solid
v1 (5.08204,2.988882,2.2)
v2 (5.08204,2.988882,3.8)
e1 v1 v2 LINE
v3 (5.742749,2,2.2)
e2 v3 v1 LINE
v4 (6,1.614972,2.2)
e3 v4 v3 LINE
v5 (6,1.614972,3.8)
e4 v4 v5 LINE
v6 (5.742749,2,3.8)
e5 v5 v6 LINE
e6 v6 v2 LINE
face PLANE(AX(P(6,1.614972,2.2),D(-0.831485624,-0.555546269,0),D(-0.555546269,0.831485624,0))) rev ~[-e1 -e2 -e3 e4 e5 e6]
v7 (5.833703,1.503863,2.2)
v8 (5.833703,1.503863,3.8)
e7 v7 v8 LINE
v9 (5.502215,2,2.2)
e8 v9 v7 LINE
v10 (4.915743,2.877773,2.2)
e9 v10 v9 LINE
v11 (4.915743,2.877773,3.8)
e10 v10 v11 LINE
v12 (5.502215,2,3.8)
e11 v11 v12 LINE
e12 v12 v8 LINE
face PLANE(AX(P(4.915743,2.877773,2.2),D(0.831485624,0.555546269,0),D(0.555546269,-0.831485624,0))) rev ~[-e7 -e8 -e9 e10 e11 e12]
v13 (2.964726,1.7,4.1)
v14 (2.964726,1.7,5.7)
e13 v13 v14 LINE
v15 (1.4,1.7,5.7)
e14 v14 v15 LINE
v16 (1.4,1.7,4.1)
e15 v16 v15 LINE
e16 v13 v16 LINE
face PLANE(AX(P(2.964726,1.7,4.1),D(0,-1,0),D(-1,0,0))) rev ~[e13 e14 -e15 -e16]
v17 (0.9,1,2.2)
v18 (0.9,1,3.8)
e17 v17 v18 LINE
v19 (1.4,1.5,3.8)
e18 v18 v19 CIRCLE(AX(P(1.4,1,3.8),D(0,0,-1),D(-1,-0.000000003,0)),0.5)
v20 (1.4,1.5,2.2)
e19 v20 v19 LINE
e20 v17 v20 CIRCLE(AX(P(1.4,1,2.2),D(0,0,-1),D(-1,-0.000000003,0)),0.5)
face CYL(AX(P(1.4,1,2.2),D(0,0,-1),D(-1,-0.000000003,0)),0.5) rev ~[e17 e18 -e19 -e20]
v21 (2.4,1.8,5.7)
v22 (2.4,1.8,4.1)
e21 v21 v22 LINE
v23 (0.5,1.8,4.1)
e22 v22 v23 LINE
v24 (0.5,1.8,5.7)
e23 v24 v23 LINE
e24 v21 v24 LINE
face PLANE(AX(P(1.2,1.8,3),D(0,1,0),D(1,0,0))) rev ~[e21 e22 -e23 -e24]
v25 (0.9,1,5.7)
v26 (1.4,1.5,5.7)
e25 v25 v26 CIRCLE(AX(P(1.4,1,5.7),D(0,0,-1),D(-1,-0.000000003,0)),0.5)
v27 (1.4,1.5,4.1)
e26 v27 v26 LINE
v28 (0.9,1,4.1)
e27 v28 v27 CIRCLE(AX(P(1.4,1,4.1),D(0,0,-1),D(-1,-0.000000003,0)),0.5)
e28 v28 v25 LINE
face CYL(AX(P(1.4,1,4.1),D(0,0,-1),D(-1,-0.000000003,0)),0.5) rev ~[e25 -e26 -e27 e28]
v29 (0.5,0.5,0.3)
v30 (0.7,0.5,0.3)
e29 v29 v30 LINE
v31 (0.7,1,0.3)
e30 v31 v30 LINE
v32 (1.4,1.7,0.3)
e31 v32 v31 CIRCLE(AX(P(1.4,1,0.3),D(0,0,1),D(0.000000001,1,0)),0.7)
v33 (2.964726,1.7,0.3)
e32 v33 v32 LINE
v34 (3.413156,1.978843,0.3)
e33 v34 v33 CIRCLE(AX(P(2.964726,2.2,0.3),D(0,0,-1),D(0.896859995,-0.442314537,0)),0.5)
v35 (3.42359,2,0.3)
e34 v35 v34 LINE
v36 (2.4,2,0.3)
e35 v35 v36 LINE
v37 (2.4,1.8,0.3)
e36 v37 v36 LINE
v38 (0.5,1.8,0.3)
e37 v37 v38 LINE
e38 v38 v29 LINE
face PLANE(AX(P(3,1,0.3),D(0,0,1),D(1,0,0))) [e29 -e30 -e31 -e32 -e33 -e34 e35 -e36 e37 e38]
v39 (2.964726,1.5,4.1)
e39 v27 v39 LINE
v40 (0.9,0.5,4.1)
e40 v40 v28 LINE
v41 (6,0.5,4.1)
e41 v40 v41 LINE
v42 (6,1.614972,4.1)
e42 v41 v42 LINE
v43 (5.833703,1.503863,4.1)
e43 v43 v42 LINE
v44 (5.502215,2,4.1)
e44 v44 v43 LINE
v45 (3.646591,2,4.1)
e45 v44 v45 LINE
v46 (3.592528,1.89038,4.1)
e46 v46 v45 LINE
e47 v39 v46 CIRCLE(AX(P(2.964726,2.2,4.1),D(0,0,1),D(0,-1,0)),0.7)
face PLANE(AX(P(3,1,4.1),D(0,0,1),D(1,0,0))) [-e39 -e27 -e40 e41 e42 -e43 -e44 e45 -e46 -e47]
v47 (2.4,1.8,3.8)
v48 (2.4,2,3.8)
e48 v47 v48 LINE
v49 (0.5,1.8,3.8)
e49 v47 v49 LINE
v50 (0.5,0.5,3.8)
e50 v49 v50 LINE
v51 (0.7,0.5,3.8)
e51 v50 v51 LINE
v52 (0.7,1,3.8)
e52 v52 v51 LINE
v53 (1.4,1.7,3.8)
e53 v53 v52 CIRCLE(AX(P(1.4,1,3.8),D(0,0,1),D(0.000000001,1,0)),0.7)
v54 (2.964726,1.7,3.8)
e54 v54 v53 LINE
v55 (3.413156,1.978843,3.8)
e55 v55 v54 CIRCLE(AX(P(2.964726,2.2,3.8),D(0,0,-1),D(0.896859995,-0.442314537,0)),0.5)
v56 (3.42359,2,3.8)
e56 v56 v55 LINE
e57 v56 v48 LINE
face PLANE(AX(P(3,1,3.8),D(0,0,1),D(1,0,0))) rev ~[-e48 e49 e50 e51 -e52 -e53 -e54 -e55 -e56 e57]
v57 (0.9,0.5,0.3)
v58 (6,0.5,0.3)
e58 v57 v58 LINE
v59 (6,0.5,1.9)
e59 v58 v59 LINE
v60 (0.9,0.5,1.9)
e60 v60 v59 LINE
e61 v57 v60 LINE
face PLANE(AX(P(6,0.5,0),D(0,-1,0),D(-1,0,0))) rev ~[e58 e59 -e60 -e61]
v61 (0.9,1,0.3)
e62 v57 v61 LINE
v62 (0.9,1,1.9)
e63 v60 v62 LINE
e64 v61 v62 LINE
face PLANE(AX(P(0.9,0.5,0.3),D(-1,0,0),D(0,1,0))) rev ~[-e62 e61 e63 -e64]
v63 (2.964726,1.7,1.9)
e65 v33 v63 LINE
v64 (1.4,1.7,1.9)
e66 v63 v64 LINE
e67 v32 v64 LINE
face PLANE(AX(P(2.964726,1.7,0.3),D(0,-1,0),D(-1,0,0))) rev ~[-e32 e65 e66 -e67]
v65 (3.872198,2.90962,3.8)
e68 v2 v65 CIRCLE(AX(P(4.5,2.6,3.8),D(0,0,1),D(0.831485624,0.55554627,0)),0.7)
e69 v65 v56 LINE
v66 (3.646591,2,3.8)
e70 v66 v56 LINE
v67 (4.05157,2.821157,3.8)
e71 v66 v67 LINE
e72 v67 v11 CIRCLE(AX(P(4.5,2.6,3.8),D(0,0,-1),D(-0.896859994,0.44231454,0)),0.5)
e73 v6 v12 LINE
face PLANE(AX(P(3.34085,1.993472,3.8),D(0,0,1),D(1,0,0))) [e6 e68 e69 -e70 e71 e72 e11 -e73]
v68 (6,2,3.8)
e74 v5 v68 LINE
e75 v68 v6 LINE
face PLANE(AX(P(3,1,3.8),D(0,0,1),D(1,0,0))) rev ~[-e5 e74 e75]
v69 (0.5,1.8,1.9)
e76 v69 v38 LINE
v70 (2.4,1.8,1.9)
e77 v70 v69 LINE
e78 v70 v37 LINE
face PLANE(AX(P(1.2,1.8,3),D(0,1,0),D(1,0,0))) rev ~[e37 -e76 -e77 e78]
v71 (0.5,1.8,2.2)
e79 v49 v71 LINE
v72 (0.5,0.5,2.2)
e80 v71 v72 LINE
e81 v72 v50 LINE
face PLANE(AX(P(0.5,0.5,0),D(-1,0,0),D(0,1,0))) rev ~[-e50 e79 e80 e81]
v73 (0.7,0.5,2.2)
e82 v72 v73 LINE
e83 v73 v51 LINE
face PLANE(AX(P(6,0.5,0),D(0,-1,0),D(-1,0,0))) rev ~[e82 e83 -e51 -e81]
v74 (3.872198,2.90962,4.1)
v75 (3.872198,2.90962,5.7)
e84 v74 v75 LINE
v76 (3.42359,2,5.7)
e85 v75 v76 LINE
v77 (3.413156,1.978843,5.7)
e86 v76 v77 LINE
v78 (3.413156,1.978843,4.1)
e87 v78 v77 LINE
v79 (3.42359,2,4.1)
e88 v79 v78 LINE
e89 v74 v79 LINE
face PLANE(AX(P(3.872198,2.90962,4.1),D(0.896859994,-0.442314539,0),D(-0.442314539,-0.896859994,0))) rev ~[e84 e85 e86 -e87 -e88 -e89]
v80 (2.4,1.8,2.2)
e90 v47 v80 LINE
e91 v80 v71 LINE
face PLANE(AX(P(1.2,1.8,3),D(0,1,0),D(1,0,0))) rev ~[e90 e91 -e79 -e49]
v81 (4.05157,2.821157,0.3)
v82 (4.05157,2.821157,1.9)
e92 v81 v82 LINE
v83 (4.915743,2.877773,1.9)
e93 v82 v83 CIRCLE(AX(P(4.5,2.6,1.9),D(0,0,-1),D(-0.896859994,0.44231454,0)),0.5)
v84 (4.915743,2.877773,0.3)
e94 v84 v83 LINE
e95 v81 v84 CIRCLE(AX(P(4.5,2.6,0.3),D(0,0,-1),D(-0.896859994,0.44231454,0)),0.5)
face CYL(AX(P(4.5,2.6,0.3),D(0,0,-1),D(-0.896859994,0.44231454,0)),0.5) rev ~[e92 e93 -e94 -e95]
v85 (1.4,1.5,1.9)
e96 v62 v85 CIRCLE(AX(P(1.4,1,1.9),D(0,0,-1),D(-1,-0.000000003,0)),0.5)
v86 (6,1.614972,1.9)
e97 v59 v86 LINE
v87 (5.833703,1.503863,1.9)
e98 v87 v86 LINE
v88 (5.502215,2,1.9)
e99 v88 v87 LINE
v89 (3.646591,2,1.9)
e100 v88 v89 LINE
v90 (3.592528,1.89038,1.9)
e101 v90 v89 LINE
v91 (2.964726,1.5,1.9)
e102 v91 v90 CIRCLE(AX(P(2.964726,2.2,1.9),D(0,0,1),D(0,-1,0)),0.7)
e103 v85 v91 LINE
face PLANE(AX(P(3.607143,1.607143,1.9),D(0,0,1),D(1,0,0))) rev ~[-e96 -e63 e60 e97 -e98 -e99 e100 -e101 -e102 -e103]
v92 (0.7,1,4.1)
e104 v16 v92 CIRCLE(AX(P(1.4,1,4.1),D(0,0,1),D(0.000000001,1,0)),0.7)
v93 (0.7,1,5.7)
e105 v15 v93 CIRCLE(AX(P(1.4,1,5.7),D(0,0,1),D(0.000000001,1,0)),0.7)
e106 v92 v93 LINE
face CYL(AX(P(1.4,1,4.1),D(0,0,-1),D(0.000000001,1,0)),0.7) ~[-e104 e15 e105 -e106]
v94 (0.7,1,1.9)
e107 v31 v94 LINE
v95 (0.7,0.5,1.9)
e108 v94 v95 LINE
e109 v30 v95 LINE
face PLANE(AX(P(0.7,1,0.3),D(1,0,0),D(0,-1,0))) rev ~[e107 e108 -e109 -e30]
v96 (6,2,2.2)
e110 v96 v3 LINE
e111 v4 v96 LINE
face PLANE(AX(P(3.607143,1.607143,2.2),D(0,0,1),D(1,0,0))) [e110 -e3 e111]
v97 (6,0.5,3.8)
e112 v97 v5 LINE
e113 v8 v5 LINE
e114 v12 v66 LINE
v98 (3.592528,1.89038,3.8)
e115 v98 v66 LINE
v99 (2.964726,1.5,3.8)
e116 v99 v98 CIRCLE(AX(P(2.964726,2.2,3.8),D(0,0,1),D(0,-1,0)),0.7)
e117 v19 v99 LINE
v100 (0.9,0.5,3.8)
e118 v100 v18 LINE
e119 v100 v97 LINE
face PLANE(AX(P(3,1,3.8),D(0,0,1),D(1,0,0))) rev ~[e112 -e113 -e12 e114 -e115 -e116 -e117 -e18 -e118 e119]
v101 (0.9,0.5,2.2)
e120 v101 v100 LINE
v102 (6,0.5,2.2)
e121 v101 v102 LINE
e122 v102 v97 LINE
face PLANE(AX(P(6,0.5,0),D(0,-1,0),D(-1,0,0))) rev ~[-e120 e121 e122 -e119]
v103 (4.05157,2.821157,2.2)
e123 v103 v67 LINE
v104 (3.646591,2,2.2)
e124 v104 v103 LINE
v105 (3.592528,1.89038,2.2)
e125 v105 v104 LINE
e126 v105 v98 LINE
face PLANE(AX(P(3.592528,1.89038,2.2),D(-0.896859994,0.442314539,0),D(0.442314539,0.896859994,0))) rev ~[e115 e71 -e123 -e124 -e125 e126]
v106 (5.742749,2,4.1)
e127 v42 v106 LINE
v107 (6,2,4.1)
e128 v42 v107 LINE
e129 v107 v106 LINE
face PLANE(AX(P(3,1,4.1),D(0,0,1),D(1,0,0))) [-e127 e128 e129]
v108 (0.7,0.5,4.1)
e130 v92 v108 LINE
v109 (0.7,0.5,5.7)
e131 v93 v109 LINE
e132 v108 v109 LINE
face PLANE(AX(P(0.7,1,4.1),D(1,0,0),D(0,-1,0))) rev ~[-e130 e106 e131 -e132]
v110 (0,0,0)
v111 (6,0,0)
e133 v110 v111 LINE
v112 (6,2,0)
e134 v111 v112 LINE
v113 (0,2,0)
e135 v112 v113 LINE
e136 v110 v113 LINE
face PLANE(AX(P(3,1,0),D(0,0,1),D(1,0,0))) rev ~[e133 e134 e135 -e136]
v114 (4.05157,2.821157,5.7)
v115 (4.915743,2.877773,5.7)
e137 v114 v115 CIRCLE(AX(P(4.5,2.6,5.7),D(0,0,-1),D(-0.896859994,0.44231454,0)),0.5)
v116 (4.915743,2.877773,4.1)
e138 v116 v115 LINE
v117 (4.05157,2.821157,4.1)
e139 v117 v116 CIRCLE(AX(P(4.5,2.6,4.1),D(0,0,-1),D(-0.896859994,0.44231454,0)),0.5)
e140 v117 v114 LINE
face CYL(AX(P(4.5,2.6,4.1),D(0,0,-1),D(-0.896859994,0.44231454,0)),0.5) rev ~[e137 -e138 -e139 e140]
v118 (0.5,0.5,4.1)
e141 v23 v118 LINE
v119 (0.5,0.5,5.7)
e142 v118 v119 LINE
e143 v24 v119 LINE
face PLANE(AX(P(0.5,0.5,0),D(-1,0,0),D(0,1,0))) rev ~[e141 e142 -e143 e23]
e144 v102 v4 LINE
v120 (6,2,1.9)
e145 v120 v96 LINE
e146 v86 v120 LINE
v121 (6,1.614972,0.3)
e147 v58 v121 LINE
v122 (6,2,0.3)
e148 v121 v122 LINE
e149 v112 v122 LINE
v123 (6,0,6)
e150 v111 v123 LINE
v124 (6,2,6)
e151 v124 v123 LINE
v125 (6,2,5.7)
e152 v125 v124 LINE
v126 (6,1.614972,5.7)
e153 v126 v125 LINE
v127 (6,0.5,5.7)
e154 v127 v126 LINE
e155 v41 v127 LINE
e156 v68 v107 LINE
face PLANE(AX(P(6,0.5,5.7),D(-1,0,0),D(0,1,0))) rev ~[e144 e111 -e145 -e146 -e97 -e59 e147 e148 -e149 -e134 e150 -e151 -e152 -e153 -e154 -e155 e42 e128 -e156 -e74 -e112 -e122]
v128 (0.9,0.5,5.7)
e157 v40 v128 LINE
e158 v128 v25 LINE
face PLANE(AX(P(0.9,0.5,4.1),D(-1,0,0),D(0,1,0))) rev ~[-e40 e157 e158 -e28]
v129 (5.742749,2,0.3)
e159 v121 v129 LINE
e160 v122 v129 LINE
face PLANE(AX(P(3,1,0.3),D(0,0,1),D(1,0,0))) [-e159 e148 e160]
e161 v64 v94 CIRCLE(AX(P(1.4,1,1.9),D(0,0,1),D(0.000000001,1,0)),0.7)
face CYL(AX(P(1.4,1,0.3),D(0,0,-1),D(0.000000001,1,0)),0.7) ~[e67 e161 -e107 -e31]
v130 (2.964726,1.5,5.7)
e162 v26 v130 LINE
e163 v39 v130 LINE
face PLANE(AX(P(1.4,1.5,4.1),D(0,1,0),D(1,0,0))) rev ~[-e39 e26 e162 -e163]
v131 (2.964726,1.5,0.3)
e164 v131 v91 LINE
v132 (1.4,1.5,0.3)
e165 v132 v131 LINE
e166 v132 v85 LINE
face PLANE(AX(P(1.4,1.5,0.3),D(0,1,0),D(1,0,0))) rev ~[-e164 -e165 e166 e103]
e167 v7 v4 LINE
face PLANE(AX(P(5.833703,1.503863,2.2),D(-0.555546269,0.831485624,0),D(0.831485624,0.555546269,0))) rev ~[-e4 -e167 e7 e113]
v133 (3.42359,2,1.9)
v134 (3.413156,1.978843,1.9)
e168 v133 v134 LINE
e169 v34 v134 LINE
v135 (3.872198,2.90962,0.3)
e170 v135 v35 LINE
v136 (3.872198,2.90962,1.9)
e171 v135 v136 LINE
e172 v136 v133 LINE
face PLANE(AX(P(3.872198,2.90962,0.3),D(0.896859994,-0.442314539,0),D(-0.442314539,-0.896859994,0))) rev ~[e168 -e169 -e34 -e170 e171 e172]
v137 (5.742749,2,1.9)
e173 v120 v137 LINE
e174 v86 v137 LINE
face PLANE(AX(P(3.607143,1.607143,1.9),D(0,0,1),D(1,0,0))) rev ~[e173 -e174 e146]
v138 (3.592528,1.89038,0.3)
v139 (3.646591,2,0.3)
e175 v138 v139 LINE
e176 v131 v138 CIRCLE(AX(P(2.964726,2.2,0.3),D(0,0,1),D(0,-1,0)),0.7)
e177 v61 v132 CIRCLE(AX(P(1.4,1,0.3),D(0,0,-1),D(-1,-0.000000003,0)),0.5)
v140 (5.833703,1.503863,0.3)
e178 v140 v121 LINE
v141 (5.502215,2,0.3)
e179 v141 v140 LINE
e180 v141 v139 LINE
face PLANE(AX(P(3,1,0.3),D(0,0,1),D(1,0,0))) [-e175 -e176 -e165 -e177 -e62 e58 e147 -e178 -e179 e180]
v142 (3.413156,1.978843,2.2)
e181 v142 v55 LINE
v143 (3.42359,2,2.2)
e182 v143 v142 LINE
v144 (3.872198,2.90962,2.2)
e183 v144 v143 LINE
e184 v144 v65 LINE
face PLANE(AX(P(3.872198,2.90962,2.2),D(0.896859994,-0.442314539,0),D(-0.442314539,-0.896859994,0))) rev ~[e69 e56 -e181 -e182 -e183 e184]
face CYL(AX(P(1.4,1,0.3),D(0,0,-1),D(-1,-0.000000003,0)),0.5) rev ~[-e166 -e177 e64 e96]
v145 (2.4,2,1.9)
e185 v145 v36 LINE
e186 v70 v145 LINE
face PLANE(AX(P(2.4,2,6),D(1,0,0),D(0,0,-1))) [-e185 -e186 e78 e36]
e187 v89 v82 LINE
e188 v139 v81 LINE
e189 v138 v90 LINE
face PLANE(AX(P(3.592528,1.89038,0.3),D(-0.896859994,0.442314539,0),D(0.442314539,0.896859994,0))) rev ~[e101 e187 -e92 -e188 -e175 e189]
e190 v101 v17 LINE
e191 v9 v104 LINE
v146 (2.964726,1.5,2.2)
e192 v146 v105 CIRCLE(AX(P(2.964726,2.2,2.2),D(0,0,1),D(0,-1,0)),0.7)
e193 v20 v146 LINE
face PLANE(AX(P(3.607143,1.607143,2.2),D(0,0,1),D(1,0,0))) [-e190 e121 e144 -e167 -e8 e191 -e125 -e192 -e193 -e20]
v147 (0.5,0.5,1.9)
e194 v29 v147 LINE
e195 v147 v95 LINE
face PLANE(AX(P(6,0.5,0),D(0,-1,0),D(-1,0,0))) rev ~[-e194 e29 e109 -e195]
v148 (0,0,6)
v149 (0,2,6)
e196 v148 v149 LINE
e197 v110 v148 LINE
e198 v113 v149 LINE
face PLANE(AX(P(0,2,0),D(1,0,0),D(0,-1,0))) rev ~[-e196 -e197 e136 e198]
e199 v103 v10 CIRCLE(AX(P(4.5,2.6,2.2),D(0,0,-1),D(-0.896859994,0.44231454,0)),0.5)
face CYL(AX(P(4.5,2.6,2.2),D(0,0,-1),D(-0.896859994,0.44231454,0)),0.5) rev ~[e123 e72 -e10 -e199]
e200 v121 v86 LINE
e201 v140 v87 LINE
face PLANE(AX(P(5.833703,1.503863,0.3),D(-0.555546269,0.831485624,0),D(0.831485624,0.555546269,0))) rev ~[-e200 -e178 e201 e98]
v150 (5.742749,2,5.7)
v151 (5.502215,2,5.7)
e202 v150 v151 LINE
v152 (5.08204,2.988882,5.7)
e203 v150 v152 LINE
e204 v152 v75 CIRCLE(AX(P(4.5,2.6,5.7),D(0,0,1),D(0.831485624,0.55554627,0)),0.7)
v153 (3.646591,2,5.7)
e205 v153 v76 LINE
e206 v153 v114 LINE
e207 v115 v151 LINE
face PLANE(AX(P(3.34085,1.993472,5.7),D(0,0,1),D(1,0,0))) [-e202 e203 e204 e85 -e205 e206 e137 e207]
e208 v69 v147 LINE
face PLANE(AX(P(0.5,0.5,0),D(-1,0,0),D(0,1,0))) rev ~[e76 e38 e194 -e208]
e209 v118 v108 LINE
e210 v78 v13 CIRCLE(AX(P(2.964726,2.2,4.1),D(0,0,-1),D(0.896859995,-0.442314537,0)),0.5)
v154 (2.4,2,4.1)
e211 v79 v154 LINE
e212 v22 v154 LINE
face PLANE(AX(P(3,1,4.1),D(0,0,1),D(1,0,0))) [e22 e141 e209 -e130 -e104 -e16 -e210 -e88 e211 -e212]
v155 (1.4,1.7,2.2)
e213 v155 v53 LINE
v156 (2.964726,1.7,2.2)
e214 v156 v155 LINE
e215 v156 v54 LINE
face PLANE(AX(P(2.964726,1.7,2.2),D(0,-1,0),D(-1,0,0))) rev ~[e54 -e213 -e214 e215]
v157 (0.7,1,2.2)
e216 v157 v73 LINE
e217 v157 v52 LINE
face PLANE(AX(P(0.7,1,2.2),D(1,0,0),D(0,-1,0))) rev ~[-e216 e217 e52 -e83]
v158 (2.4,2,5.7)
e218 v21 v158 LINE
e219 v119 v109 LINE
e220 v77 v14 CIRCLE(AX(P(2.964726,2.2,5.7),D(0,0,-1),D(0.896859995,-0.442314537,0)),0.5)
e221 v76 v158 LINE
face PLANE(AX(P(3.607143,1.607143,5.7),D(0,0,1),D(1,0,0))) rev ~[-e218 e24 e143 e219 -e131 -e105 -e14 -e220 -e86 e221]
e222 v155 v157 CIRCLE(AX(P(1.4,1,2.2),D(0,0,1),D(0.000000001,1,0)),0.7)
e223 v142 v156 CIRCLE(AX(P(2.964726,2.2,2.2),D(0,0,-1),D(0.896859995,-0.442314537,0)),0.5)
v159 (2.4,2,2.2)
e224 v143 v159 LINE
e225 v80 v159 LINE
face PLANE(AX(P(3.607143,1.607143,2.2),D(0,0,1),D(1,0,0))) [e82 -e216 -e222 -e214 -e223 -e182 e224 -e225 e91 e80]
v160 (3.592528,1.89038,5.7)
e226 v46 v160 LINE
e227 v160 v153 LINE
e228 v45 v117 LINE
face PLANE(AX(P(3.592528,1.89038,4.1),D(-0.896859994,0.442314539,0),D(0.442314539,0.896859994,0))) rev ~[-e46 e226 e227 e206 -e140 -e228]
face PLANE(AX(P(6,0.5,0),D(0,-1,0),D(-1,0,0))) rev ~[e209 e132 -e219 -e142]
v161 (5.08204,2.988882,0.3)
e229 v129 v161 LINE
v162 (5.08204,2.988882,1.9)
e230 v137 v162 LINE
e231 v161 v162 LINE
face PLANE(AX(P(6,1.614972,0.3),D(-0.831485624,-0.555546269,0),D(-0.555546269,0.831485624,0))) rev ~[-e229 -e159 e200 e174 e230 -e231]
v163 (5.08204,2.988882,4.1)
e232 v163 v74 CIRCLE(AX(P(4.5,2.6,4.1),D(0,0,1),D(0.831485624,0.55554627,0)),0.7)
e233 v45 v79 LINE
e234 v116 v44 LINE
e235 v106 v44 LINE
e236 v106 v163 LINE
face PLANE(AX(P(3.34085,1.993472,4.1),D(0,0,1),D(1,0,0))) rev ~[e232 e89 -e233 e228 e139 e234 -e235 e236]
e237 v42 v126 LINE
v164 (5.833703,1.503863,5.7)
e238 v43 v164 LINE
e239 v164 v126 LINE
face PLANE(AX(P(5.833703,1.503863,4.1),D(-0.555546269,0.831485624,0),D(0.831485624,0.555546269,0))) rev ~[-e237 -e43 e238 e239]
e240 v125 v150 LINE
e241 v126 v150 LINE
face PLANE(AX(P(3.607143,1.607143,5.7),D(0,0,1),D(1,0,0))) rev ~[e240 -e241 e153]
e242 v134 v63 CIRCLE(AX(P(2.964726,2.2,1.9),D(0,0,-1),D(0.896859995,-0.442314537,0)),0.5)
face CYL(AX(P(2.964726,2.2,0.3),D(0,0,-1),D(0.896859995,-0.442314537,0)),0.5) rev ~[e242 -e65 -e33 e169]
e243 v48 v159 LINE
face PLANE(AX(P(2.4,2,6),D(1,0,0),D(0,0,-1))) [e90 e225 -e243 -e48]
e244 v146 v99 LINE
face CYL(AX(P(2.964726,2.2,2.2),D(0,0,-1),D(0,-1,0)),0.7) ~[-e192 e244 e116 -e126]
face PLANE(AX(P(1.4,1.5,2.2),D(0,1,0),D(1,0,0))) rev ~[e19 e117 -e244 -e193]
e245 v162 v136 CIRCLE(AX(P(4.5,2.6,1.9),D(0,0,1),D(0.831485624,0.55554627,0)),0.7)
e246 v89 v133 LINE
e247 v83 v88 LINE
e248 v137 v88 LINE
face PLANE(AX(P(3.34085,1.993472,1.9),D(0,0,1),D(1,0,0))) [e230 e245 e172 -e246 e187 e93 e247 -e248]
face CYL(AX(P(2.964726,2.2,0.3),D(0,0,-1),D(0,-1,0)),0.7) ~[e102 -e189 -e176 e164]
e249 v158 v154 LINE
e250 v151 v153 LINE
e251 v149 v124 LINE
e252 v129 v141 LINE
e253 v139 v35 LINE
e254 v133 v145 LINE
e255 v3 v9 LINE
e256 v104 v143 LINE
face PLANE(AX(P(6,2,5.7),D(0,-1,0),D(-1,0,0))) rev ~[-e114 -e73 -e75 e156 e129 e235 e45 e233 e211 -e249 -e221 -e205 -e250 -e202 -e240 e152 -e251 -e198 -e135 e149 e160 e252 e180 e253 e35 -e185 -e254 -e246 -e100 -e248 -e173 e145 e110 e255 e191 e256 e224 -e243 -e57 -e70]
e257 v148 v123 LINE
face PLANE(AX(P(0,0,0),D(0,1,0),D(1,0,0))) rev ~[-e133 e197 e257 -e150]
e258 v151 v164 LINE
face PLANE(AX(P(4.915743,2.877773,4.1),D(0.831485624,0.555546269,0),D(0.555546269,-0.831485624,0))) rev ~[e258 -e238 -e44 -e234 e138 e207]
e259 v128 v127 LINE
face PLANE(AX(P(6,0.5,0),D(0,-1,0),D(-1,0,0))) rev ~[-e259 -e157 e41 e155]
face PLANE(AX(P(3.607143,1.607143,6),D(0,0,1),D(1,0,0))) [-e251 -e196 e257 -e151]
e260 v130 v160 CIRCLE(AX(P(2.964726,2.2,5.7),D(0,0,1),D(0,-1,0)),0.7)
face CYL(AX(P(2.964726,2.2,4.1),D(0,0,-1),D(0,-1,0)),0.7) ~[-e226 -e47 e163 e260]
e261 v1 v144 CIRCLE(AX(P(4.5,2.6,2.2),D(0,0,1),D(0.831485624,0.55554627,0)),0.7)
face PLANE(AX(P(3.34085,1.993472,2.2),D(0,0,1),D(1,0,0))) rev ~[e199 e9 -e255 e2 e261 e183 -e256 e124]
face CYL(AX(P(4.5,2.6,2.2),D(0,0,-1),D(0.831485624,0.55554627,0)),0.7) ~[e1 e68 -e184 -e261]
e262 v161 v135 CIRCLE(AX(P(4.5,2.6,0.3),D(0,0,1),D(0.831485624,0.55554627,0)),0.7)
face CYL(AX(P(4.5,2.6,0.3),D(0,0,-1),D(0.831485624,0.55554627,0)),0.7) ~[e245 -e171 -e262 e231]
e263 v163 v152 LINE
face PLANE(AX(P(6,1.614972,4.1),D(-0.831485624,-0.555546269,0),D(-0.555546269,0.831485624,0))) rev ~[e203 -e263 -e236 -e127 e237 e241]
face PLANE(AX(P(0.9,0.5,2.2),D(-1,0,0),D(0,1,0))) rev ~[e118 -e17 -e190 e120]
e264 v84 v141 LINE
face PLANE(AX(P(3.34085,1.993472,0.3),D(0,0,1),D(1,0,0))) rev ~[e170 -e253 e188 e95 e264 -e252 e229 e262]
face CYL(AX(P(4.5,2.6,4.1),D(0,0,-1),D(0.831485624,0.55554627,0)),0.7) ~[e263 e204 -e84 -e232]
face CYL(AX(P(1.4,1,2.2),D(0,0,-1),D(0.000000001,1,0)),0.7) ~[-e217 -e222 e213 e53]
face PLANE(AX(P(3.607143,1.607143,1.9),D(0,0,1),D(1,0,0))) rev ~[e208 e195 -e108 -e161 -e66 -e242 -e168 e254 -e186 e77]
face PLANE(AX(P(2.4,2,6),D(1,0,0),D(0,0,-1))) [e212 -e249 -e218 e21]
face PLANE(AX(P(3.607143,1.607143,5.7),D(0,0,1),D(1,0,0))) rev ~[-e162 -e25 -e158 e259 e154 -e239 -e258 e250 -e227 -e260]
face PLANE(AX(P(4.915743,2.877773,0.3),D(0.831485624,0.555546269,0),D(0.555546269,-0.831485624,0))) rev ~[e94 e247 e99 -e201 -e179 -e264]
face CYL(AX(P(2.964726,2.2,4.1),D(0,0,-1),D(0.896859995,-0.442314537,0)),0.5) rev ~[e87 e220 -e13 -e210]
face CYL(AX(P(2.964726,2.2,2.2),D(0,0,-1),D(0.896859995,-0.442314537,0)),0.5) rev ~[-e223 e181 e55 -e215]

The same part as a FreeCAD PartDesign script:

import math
import FreeCAD as App
import Part
import Sketcher
from FreeCAD import Vector
Q = App.Units.Quantity


def add_polygon(sketch, points):
    """Adds a closed chain of lines whose ends are joined by coincident constraints."""
    first, n = sketch.GeometryCount, len(points)
    for a, b in zip(points, points[1:] + points[:1]):
        sketch.addGeometry(Part.LineSegment(App.Vector(*a, 0), App.Vector(*b, 0)), False)
    for i in range(n):
        sketch.addConstraint(Sketcher.Constraint("Coincident", first + i, 2, first + (i + 1) % n, 1))

doc = App.newDocument("Part")
params = doc.addObject("Spreadsheet::Sheet", "Params")
for row, (alias, value) in enumerate([
    ("sketch1_width", "6 mm"),
    ("sketch1_height", "2 mm"),
    ("sketch1_width2", "0.5 mm"),
    ("pad1_length", "6 mm"),
    ("sketch2_radius", "0.7 mm"),
    ("sketch2_radius2", "0.5 mm"),
    ("sketch2_height", "0.5 mm"),
    ("pad2_length", "1.6 mm"),
    ("sketch3_width", "5.5 mm"),
    ("sketch3_height", "1.5 mm"),
    ("pad3_length", "0.3 mm"),
    ("sketch4_width", "5.5 mm"),
    ("sketch4_height", "1.5 mm"),
    ("pad4_length", "0.3 mm"),
    ("sketch5_radius", "0.7 mm"),
    ("sketch5_radius2", "0.5 mm"),
    ("sketch5_height", "0.5 mm"),
    ("pad5_length", "1.6 mm"),
    ("sketch6_width", "5.5 mm"),
    ("sketch6_height", "1.5 mm"),
    ("pad6_length", "0.3 mm"),
    ("sketch7_radius", "0.7 mm"),
    ("sketch7_radius2", "0.5 mm"),
    ("sketch7_height", "0.5 mm"),
    ("pad7_length", "1.6 mm"),
    ("sketch8_width", "5.5 mm"),
    ("sketch8_height", "1.5 mm"),
    ("pad8_length", "0.3 mm"),
    ("sketch9_height", "6 mm"),
    ("sketch9_width", "2.4 mm"),
    ("pad9_length", "0.2 mm"),
], start=1):
    params.set(f"A{row}", alias)
    params.set(f"B{row}", "=" + value)
    params.setAlias(f"B{row}", alias)

body = doc.addObject("PartDesign::Body", "Body")

# Sketch on XY plane
sketch1 = body.newObject("Sketcher::SketchObject", "Sketch")
sketch1.AttachmentSupport = (doc.getObject("XY_Plane"), [""])
sketch1.MapMode = "FlatFace"
add_polygon(sketch1, [(0.5, 0.5), (0.5, 2), (0, 2), (0, 0), (6, 0), (6, 0.5)])  # lines 0-5
sketch1.addConstraint(Sketcher.Constraint("Vertical", 0))
sketch1.addConstraint(Sketcher.Constraint("Horizontal", 1))
sketch1.addConstraint(Sketcher.Constraint("Vertical", 2))
sketch1.addConstraint(Sketcher.Constraint("Horizontal", 3))
sketch1.addConstraint(Sketcher.Constraint("Vertical", 4))
sketch1.addConstraint(Sketcher.Constraint("Horizontal", 5))
sketch1.addConstraint(Sketcher.Constraint("Coincident", 2, 2, -1, 1))
sketch1.addConstraint(Sketcher.Constraint("Equal", 1, 4))
sketch1.addConstraint(Sketcher.Constraint("DistanceX", 3, 1, 3, 2, Q("6 mm")))
sketch1.addConstraint(Sketcher.Constraint("DistanceY", 2, 2, 2, 1, Q("2 mm")))
sketch1.addConstraint(Sketcher.Constraint("DistanceX", 1, 2, 1, 1, Q("0.5 mm")))
sketch1.setExpression("Constraints[14]", "Params.sketch1_width")
sketch1.setExpression("Constraints[15]", "Params.sketch1_height")
sketch1.setExpression("Constraints[16]", "Params.sketch1_width2")
pad1 = body.newObject("PartDesign::Pad", "Pad")
pad1.Profile = sketch1
pad1.setExpression("Length", "Params.pad1_length")

# Sketch on XY plane
sketch2 = body.newObject("Sketcher::SketchObject", "Sketch001")
sketch2.AttachmentSupport = (doc.getObject("XY_Plane"), [""])
sketch2.MapMode = "FlatFace"
sketch2.AttachmentOffset = App.Placement(Vector(0, 0, 0.3), App.Rotation())
sketch2.addGeometry(Part.LineSegment(Vector(5.83, 1.5, 0), Vector(6, 1.61, 0)), False)
sketch2.addGeometry(Part.LineSegment(Vector(6, 1.61, 0), Vector(5.08, 2.99, 0)), False)
sketch2.addGeometry(Part.ArcOfCircle(Part.Circle(Vector(4.5, 2.6, 0), Vector(0, 0, 1), 0.7), math.radians(34), math.radians(154)), False)
sketch2.addGeometry(Part.LineSegment(Vector(3.87, 2.91, 0), Vector(3.41, 1.98, 0)), False)
sketch2.addGeometry(Part.ArcOfCircle(Part.Circle(Vector(2.96, 2.2, 0), Vector(0, 0, 1), 0.5), math.radians(-90), math.radians(-26)), False)
sketch2.addGeometry(Part.LineSegment(Vector(2.96, 1.7, 0), Vector(1.4, 1.7, 0)), False)
sketch2.addGeometry(Part.ArcOfCircle(Part.Circle(Vector(1.4, 1, 0), Vector(0, 0, 1), 0.7), math.radians(90), math.radians(180)), False)
sketch2.addGeometry(Part.LineSegment(Vector(0.7, 1, 0), Vector(0.7, 0.5, 0)), False)
sketch2.addGeometry(Part.LineSegment(Vector(0.7, 0.5, 0), Vector(0.9, 0.5, 0)), False)
sketch2.addGeometry(Part.LineSegment(Vector(0.9, 0.5, 0), Vector(0.9, 1, 0)), False)
sketch2.addGeometry(Part.ArcOfCircle(Part.Circle(Vector(1.4, 1, 0), Vector(0, 0, 1), 0.5), math.radians(90), math.radians(180)), False)
sketch2.addGeometry(Part.LineSegment(Vector(1.4, 1.5, 0), Vector(2.96, 1.5, 0)), False)
sketch2.addGeometry(Part.ArcOfCircle(Part.Circle(Vector(2.96, 2.2, 0), Vector(0, 0, 1), 0.7), math.radians(-90), math.radians(-26)), False)
sketch2.addGeometry(Part.LineSegment(Vector(3.59, 1.89, 0), Vector(4.05, 2.82, 0)), False)
sketch2.addGeometry(Part.ArcOfCircle(Part.Circle(Vector(4.5, 2.6, 0), Vector(0, 0, 1), 0.5), math.radians(34), math.radians(154)), False)
sketch2.addGeometry(Part.LineSegment(Vector(4.92, 2.88, 0), Vector(5.83, 1.5, 0)), False)
sketch2.addConstraint(Sketcher.Constraint("Coincident", 0, 2, 1, 1))
sketch2.addConstraint(Sketcher.Constraint("Tangent", 1, 2, 2, 1))
sketch2.addConstraint(Sketcher.Constraint("Tangent", 2, 2, 3, 1))
sketch2.addConstraint(Sketcher.Constraint("Tangent", 3, 2, 4, 2))
sketch2.addConstraint(Sketcher.Constraint("Tangent", 4, 1, 5, 1))
sketch2.addConstraint(Sketcher.Constraint("Tangent", 5, 2, 6, 1))
sketch2.addConstraint(Sketcher.Constraint("Tangent", 6, 2, 7, 1))
sketch2.addConstraint(Sketcher.Constraint("Coincident", 7, 2, 8, 1))
sketch2.addConstraint(Sketcher.Constraint("Coincident", 8, 2, 9, 1))
sketch2.addConstraint(Sketcher.Constraint("Tangent", 9, 2, 10, 2))
sketch2.addConstraint(Sketcher.Constraint("Tangent", 10, 1, 11, 1))
sketch2.addConstraint(Sketcher.Constraint("Tangent", 11, 2, 12, 1))
sketch2.addConstraint(Sketcher.Constraint("Tangent", 12, 2, 13, 1))
sketch2.addConstraint(Sketcher.Constraint("Tangent", 13, 2, 14, 2))
sketch2.addConstraint(Sketcher.Constraint("Tangent", 14, 1, 15, 1))
sketch2.addConstraint(Sketcher.Constraint("Coincident", 15, 2, 0, 1))
sketch2.addConstraint(Sketcher.Constraint("Horizontal", 5))
sketch2.addConstraint(Sketcher.Constraint("Vertical", 7))
sketch2.addConstraint(Sketcher.Constraint("Horizontal", 8))
sketch2.addConstraint(Sketcher.Constraint("Vertical", 9))
sketch2.addConstraint(Sketcher.Constraint("Horizontal", 11))
sketch2.addConstraint(Sketcher.Constraint("Coincident", 10, 3, 6, 3))
sketch2.addConstraint(Sketcher.Constraint("Coincident", 12, 3, 4, 3))
sketch2.addConstraint(Sketcher.Constraint("Coincident", 14, 3, 2, 3))
sketch2.addConstraint(Sketcher.Constraint("Equal", 2, 6))
sketch2.addConstraint(Sketcher.Constraint("Equal", 4, 10))
sketch2.addConstraint(Sketcher.Constraint("Equal", 10, 14))
sketch2.addConstraint(Sketcher.Constraint("Perpendicular", 0, 1))
sketch2.addConstraint(Sketcher.Constraint("Parallel", 1, 15))
sketch2.addConstraint(Sketcher.Constraint("Radius", 2, Q("0.7 mm")))
sketch2.addConstraint(Sketcher.Constraint("Radius", 4, Q("0.5 mm")))
sketch2.addConstraint(Sketcher.Constraint("DistanceY", 7, 2, 7, 1, Q("0.5 mm")))
sketch2.addConstraint(Sketcher.Constraint("DistanceY", -1, 1, 6, 3, Q("1 mm")))
sketch2.addConstraint(Sketcher.Constraint("DistanceX", -1, 1, 0, 2, Q("6 mm")))
sketch2.addConstraint(Sketcher.Constraint("DistanceX", -1, 1, 2, 3, Q("4.5 mm")))
sketch2.addConstraint(Sketcher.Constraint("DistanceY", -1, 1, 2, 3, Q("2.6 mm")))
sketch2.addConstraint(Sketcher.Constraint("DistanceX", -1, 1, 6, 3, Q("1.4 mm")))
sketch2.addConstraint(Sketcher.Constraint("DistanceX", -1, 1, 2, 2, Q("3.872198 mm")))
sketch2.addConstraint(Sketcher.Constraint("DistanceX", -1, 1, 1, 2, Q("5.08204 mm")))
sketch2.setExpression("Constraints[29]", "Params.sketch2_radius")
sketch2.setExpression("Constraints[30]", "Params.sketch2_radius2")
sketch2.setExpression("Constraints[31]", "Params.sketch2_height")
pad2 = body.newObject("PartDesign::Pad", "Pad001")
pad2.Profile = sketch2
pad2.setExpression("Length", "Params.pad2_length")

# Sketch on XY plane
sketch3 = body.newObject("Sketcher::SketchObject", "Sketch002")
sketch3.AttachmentSupport = (doc.getObject("XY_Plane"), [""])
sketch3.MapMode = "FlatFace"
add_polygon(sketch3, [(0.5, 0.5), (6, 0.5), (6, 2), (0.5, 2)])  # lines 0-3
sketch3.addConstraint(Sketcher.Constraint("Horizontal", 0))
sketch3.addConstraint(Sketcher.Constraint("Vertical", 1))
sketch3.addConstraint(Sketcher.Constraint("Horizontal", 2))
sketch3.addConstraint(Sketcher.Constraint("Vertical", 3))
sketch3.addConstraint(Sketcher.Constraint("DistanceX", 0, 1, 0, 2, Q("5.5 mm")))
sketch3.addConstraint(Sketcher.Constraint("DistanceY", 1, 1, 1, 2, Q("1.5 mm")))
sketch3.addConstraint(Sketcher.Constraint("DistanceX", -1, 1, 0, 2, Q("6 mm")))
sketch3.addConstraint(Sketcher.Constraint("DistanceY", -1, 1, 1, 2, Q("2 mm")))
sketch3.setExpression("Constraints[8]", "Params.sketch3_width")
sketch3.setExpression("Constraints[9]", "Params.sketch3_height")
pad3 = body.newObject("PartDesign::Pad", "Pad002")
pad3.Profile = sketch3
pad3.setExpression("Length", "Params.pad3_length")

# Sketch on XY plane
sketch4 = body.newObject("Sketcher::SketchObject", "Sketch003")
sketch4.AttachmentSupport = (doc.getObject("XY_Plane"), [""])
sketch4.MapMode = "FlatFace"
sketch4.AttachmentOffset = App.Placement(Vector(0, 0, 1.9), App.Rotation())
add_polygon(sketch4, [(0.5, 2), (0.5, 0.5), (6, 0.5), (6, 2)])  # lines 0-3
sketch4.addConstraint(Sketcher.Constraint("Vertical", 0))
sketch4.addConstraint(Sketcher.Constraint("Horizontal", 1))
sketch4.addConstraint(Sketcher.Constraint("Vertical", 2))
sketch4.addConstraint(Sketcher.Constraint("Horizontal", 3))
sketch4.addConstraint(Sketcher.Constraint("DistanceX", 1, 1, 1, 2, Q("5.5 mm")))
sketch4.addConstraint(Sketcher.Constraint("DistanceY", 0, 2, 0, 1, Q("1.5 mm")))
sketch4.addConstraint(Sketcher.Constraint("DistanceX", -1, 1, 1, 2, Q("6 mm")))
sketch4.addConstraint(Sketcher.Constraint("DistanceY", -1, 1, 2, 2, Q("2 mm")))
sketch4.setExpression("Constraints[8]", "Params.sketch4_width")
sketch4.setExpression("Constraints[9]", "Params.sketch4_height")
pad4 = body.newObject("PartDesign::Pad", "Pad003")
pad4.Profile = sketch4
pad4.setExpression("Length", "Params.pad4_length")

# Sketch on XY plane
sketch5 = body.newObject("Sketcher::SketchObject", "Sketch004")
sketch5.AttachmentSupport = (doc.getObject("XY_Plane"), [""])
sketch5.MapMode = "FlatFace"
sketch5.AttachmentOffset = App.Placement(Vector(0, 0, 2.2), App.Rotation())
sketch5.addGeometry(Part.LineSegment(Vector(5.83, 1.5, 0), Vector(6, 1.61, 0)), False)
sketch5.addGeometry(Part.LineSegment(Vector(6, 1.61, 0), Vector(5.08, 2.99, 0)), False)
sketch5.addGeometry(Part.ArcOfCircle(Part.Circle(Vector(4.5, 2.6, 0), Vector(0, 0, 1), 0.7), math.radians(34), math.radians(154)), False)
sketch5.addGeometry(Part.LineSegment(Vector(3.87, 2.91, 0), Vector(3.41, 1.98, 0)), False)
sketch5.addGeometry(Part.ArcOfCircle(Part.Circle(Vector(2.96, 2.2, 0), Vector(0, 0, 1), 0.5), math.radians(-90), math.radians(-26)), False)
sketch5.addGeometry(Part.LineSegment(Vector(2.96, 1.7, 0), Vector(1.4, 1.7, 0)), False)
sketch5.addGeometry(Part.ArcOfCircle(Part.Circle(Vector(1.4, 1, 0), Vector(0, 0, 1), 0.7), math.radians(90), math.radians(180)), False)
sketch5.addGeometry(Part.LineSegment(Vector(0.7, 1, 0), Vector(0.7, 0.5, 0)), False)
sketch5.addGeometry(Part.LineSegment(Vector(0.7, 0.5, 0), Vector(0.9, 0.5, 0)), False)
sketch5.addGeometry(Part.LineSegment(Vector(0.9, 0.5, 0), Vector(0.9, 1, 0)), False)
sketch5.addGeometry(Part.ArcOfCircle(Part.Circle(Vector(1.4, 1, 0), Vector(0, 0, 1), 0.5), math.radians(90), math.radians(180)), False)
sketch5.addGeometry(Part.LineSegment(Vector(1.4, 1.5, 0), Vector(2.96, 1.5, 0)), False)
sketch5.addGeometry(Part.ArcOfCircle(Part.Circle(Vector(2.96, 2.2, 0), Vector(0, 0, 1), 0.7), math.radians(-90), math.radians(-26)), False)
sketch5.addGeometry(Part.LineSegment(Vector(3.59, 1.89, 0), Vector(4.05, 2.82, 0)), False)
sketch5.addGeometry(Part.ArcOfCircle(Part.Circle(Vector(4.5, 2.6, 0), Vector(0, 0, 1), 0.5), math.radians(34), math.radians(154)), False)
sketch5.addGeometry(Part.LineSegment(Vector(4.92, 2.88, 0), Vector(5.83, 1.5, 0)), False)
sketch5.addConstraint(Sketcher.Constraint("Coincident", 0, 2, 1, 1))
sketch5.addConstraint(Sketcher.Constraint("Tangent", 1, 2, 2, 1))
sketch5.addConstraint(Sketcher.Constraint("Tangent", 2, 2, 3, 1))
sketch5.addConstraint(Sketcher.Constraint("Tangent", 3, 2, 4, 2))
sketch5.addConstraint(Sketcher.Constraint("Tangent", 4, 1, 5, 1))
sketch5.addConstraint(Sketcher.Constraint("Tangent", 5, 2, 6, 1))
sketch5.addConstraint(Sketcher.Constraint("Tangent", 6, 2, 7, 1))
sketch5.addConstraint(Sketcher.Constraint("Coincident", 7, 2, 8, 1))
sketch5.addConstraint(Sketcher.Constraint("Coincident", 8, 2, 9, 1))
sketch5.addConstraint(Sketcher.Constraint("Tangent", 9, 2, 10, 2))
sketch5.addConstraint(Sketcher.Constraint("Tangent", 10, 1, 11, 1))
sketch5.addConstraint(Sketcher.Constraint("Tangent", 11, 2, 12, 1))
sketch5.addConstraint(Sketcher.Constraint("Tangent", 12, 2, 13, 1))
sketch5.addConstraint(Sketcher.Constraint("Tangent", 13, 2, 14, 2))
sketch5.addConstraint(Sketcher.Constraint("Tangent", 14, 1, 15, 1))
sketch5.addConstraint(Sketcher.Constraint("Coincident", 15, 2, 0, 1))
sketch5.addConstraint(Sketcher.Constraint("Horizontal", 5))
sketch5.addConstraint(Sketcher.Constraint("Vertical", 7))
sketch5.addConstraint(Sketcher.Constraint("Horizontal", 8))
sketch5.addConstraint(Sketcher.Constraint("Vertical", 9))
sketch5.addConstraint(Sketcher.Constraint("Horizontal", 11))
sketch5.addConstraint(Sketcher.Constraint("Coincident", 10, 3, 6, 3))
sketch5.addConstraint(Sketcher.Constraint("Coincident", 12, 3, 4, 3))
sketch5.addConstraint(Sketcher.Constraint("Coincident", 14, 3, 2, 3))
sketch5.addConstraint(Sketcher.Constraint("Equal", 2, 6))
sketch5.addConstraint(Sketcher.Constraint("Equal", 4, 10))
sketch5.addConstraint(Sketcher.Constraint("Equal", 10, 14))
sketch5.addConstraint(Sketcher.Constraint("Perpendicular", 0, 1))
sketch5.addConstraint(Sketcher.Constraint("Parallel", 1, 15))
sketch5.addConstraint(Sketcher.Constraint("Radius", 2, Q("0.7 mm")))
sketch5.addConstraint(Sketcher.Constraint("Radius", 4, Q("0.5 mm")))
sketch5.addConstraint(Sketcher.Constraint("DistanceY", 7, 2, 7, 1, Q("0.5 mm")))
sketch5.addConstraint(Sketcher.Constraint("DistanceY", -1, 1, 6, 3, Q("1 mm")))
sketch5.addConstraint(Sketcher.Constraint("DistanceX", -1, 1, 0, 2, Q("6 mm")))
sketch5.addConstraint(Sketcher.Constraint("DistanceX", -1, 1, 2, 3, Q("4.5 mm")))
sketch5.addConstraint(Sketcher.Constraint("DistanceY", -1, 1, 2, 3, Q("2.6 mm")))
sketch5.addConstraint(Sketcher.Constraint("DistanceX", -1, 1, 6, 3, Q("1.4 mm")))
sketch5.addConstraint(Sketcher.Constraint("DistanceX", -1, 1, 2, 2, Q("3.872198 mm")))
sketch5.addConstraint(Sketcher.Constraint("DistanceX", -1, 1, 1, 2, Q("5.08204 mm")))
sketch5.setExpression("Constraints[29]", "Params.sketch5_radius")
sketch5.setExpression("Constraints[30]", "Params.sketch5_radius2")
sketch5.setExpression("Constraints[31]", "Params.sketch5_height")
pad5 = body.newObject("PartDesign::Pad", "Pad004")
pad5.Profile = sketch5
pad5.setExpression("Length", "Params.pad5_length")

# Sketch on XY plane
sketch6 = body.newObject("Sketcher::SketchObject", "Sketch005")
sketch6.AttachmentSupport = (doc.getObject("XY_Plane"), [""])
sketch6.MapMode = "FlatFace"
sketch6.AttachmentOffset = App.Placement(Vector(0, 0, 3.8), App.Rotation())
add_polygon(sketch6, [(0.5, 0.5), (6, 0.5), (6, 2), (0.5, 2)])  # lines 0-3
sketch6.addConstraint(Sketcher.Constraint("Horizontal", 0))
sketch6.addConstraint(Sketcher.Constraint("Vertical", 1))
sketch6.addConstraint(Sketcher.Constraint("Horizontal", 2))
sketch6.addConstraint(Sketcher.Constraint("Vertical", 3))
sketch6.addConstraint(Sketcher.Constraint("DistanceX", 0, 1, 0, 2, Q("5.5 mm")))
sketch6.addConstraint(Sketcher.Constraint("DistanceY", 1, 1, 1, 2, Q("1.5 mm")))
sketch6.addConstraint(Sketcher.Constraint("DistanceX", -1, 1, 0, 2, Q("6 mm")))
sketch6.addConstraint(Sketcher.Constraint("DistanceY", -1, 1, 1, 2, Q("2 mm")))
sketch6.setExpression("Constraints[8]", "Params.sketch6_width")
sketch6.setExpression("Constraints[9]", "Params.sketch6_height")
pad6 = body.newObject("PartDesign::Pad", "Pad005")
pad6.Profile = sketch6
pad6.setExpression("Length", "Params.pad6_length")

# Sketch on XY plane
sketch7 = body.newObject("Sketcher::SketchObject", "Sketch006")
sketch7.AttachmentSupport = (doc.getObject("XY_Plane"), [""])
sketch7.MapMode = "FlatFace"
sketch7.AttachmentOffset = App.Placement(Vector(0, 0, 4.1), App.Rotation())
sketch7.addGeometry(Part.LineSegment(Vector(5.83, 1.5, 0), Vector(6, 1.61, 0)), False)
sketch7.addGeometry(Part.LineSegment(Vector(6, 1.61, 0), Vector(5.08, 2.99, 0)), False)
sketch7.addGeometry(Part.ArcOfCircle(Part.Circle(Vector(4.5, 2.6, 0), Vector(0, 0, 1), 0.7), math.radians(34), math.radians(154)), False)
sketch7.addGeometry(Part.LineSegment(Vector(3.87, 2.91, 0), Vector(3.41, 1.98, 0)), False)
sketch7.addGeometry(Part.ArcOfCircle(Part.Circle(Vector(2.96, 2.2, 0), Vector(0, 0, 1), 0.5), math.radians(-90), math.radians(-26)), False)
sketch7.addGeometry(Part.LineSegment(Vector(2.96, 1.7, 0), Vector(1.4, 1.7, 0)), False)
sketch7.addGeometry(Part.ArcOfCircle(Part.Circle(Vector(1.4, 1, 0), Vector(0, 0, 1), 0.7), math.radians(90), math.radians(180)), False)
sketch7.addGeometry(Part.LineSegment(Vector(0.7, 1, 0), Vector(0.7, 0.5, 0)), False)
sketch7.addGeometry(Part.LineSegment(Vector(0.7, 0.5, 0), Vector(0.9, 0.5, 0)), False)
sketch7.addGeometry(Part.LineSegment(Vector(0.9, 0.5, 0), Vector(0.9, 1, 0)), False)
sketch7.addGeometry(Part.ArcOfCircle(Part.Circle(Vector(1.4, 1, 0), Vector(0, 0, 1), 0.5), math.radians(90), math.radians(180)), False)
sketch7.addGeometry(Part.LineSegment(Vector(1.4, 1.5, 0), Vector(2.96, 1.5, 0)), False)
sketch7.addGeometry(Part.ArcOfCircle(Part.Circle(Vector(2.96, 2.2, 0), Vector(0, 0, 1), 0.7), math.radians(-90), math.radians(-26)), False)
sketch7.addGeometry(Part.LineSegment(Vector(3.59, 1.89, 0), Vector(4.05, 2.82, 0)), False)
sketch7.addGeometry(Part.ArcOfCircle(Part.Circle(Vector(4.5, 2.6, 0), Vector(0, 0, 1), 0.5), math.radians(34), math.radians(154)), False)
sketch7.addGeometry(Part.LineSegment(Vector(4.92, 2.88, 0), Vector(5.83, 1.5, 0)), False)
sketch7.addConstraint(Sketcher.Constraint("Coincident", 0, 2, 1, 1))
sketch7.addConstraint(Sketcher.Constraint("Tangent", 1, 2, 2, 1))
sketch7.addConstraint(Sketcher.Constraint("Tangent", 2, 2, 3, 1))
sketch7.addConstraint(Sketcher.Constraint("Tangent", 3, 2, 4, 2))
sketch7.addConstraint(Sketcher.Constraint("Tangent", 4, 1, 5, 1))
sketch7.addConstraint(Sketcher.Constraint("Tangent", 5, 2, 6, 1))
sketch7.addConstraint(Sketcher.Constraint("Tangent", 6, 2, 7, 1))
sketch7.addConstraint(Sketcher.Constraint("Coincident", 7, 2, 8, 1))
sketch7.addConstraint(Sketcher.Constraint("Coincident", 8, 2, 9, 1))
sketch7.addConstraint(Sketcher.Constraint("Tangent", 9, 2, 10, 2))
sketch7.addConstraint(Sketcher.Constraint("Tangent", 10, 1, 11, 1))
sketch7.addConstraint(Sketcher.Constraint("Tangent", 11, 2, 12, 1))
sketch7.addConstraint(Sketcher.Constraint("Tangent", 12, 2, 13, 1))
sketch7.addConstraint(Sketcher.Constraint("Tangent", 13, 2, 14, 2))
sketch7.addConstraint(Sketcher.Constraint("Tangent", 14, 1, 15, 1))
sketch7.addConstraint(Sketcher.Constraint("Coincident", 15, 2, 0, 1))
sketch7.addConstraint(Sketcher.Constraint("Horizontal", 5))
sketch7.addConstraint(Sketcher.Constraint("Vertical", 7))
sketch7.addConstraint(Sketcher.Constraint("Horizontal", 8))
sketch7.addConstraint(Sketcher.Constraint("Vertical", 9))
sketch7.addConstraint(Sketcher.Constraint("Horizontal", 11))
sketch7.addConstraint(Sketcher.Constraint("Coincident", 10, 3, 6, 3))
sketch7.addConstraint(Sketcher.Constraint("Coincident", 12, 3, 4, 3))
sketch7.addConstraint(Sketcher.Constraint("Coincident", 14, 3, 2, 3))
sketch7.addConstraint(Sketcher.Constraint("Equal", 2, 6))
sketch7.addConstraint(Sketcher.Constraint("Equal", 4, 10))
sketch7.addConstraint(Sketcher.Constraint("Equal", 10, 14))
sketch7.addConstraint(Sketcher.Constraint("Perpendicular", 0, 1))
sketch7.addConstraint(Sketcher.Constraint("Parallel", 1, 15))
sketch7.addConstraint(Sketcher.Constraint("Radius", 2, Q("0.7 mm")))
sketch7.addConstraint(Sketcher.Constraint("Radius", 4, Q("0.5 mm")))
sketch7.addConstraint(Sketcher.Constraint("DistanceY", 7, 2, 7, 1, Q("0.5 mm")))
sketch7.addConstraint(Sketcher.Constraint("DistanceY", -1, 1, 6, 3, Q("1 mm")))
sketch7.addConstraint(Sketcher.Constraint("DistanceX", -1, 1, 0, 2, Q("6 mm")))
sketch7.addConstraint(Sketcher.Constraint("DistanceX", -1, 1, 2, 3, Q("4.5 mm")))
sketch7.addConstraint(Sketcher.Constraint("DistanceY", -1, 1, 2, 3, Q("2.6 mm")))
sketch7.addConstraint(Sketcher.Constraint("DistanceX", -1, 1, 6, 3, Q("1.4 mm")))
sketch7.addConstraint(Sketcher.Constraint("DistanceX", -1, 1, 2, 2, Q("3.872198 mm")))
sketch7.addConstraint(Sketcher.Constraint("DistanceX", -1, 1, 1, 2, Q("5.08204 mm")))
sketch7.setExpression("Constraints[29]", "Params.sketch7_radius")
sketch7.setExpression("Constraints[30]", "Params.sketch7_radius2")
sketch7.setExpression("Constraints[31]", "Params.sketch7_height")
pad7 = body.newObject("PartDesign::Pad", "Pad006")
pad7.Profile = sketch7
pad7.setExpression("Length", "Params.pad7_length")

# Sketch on XY plane
sketch8 = body.newObject("Sketcher::SketchObject", "Sketch007")
sketch8.AttachmentSupport = (doc.getObject("XY_Plane"), [""])
sketch8.MapMode = "FlatFace"
sketch8.AttachmentOffset = App.Placement(Vector(0, 0, 5.7), App.Rotation())
add_polygon(sketch8, [(0.5, 2), (0.5, 0.5), (6, 0.5), (6, 2)])  # lines 0-3
sketch8.addConstraint(Sketcher.Constraint("Vertical", 0))
sketch8.addConstraint(Sketcher.Constraint("Horizontal", 1))
sketch8.addConstraint(Sketcher.Constraint("Vertical", 2))
sketch8.addConstraint(Sketcher.Constraint("Horizontal", 3))
sketch8.addConstraint(Sketcher.Constraint("DistanceX", 1, 1, 1, 2, Q("5.5 mm")))
sketch8.addConstraint(Sketcher.Constraint("DistanceY", 0, 2, 0, 1, Q("1.5 mm")))
sketch8.addConstraint(Sketcher.Constraint("DistanceX", -1, 1, 1, 2, Q("6 mm")))
sketch8.addConstraint(Sketcher.Constraint("DistanceY", -1, 1, 2, 2, Q("2 mm")))
sketch8.setExpression("Constraints[8]", "Params.sketch8_width")
sketch8.setExpression("Constraints[9]", "Params.sketch8_height")
pad8 = body.newObject("PartDesign::Pad", "Pad007")
pad8.Profile = sketch8
pad8.setExpression("Length", "Params.pad8_length")

# Sketch on XZ plane
sketch9 = body.newObject("Sketcher::SketchObject", "Sketch008")
sketch9.AttachmentSupport = (doc.getObject("XZ_Plane"), [""])
sketch9.MapMode = "FlatFace"
sketch9.AttachmentOffset = App.Placement(Vector(0, 0, -2), App.Rotation())
add_polygon(sketch9, [(0, 0), (0, 6), (2.4, 6), (2.4, 0)])  # lines 0-3
sketch9.addConstraint(Sketcher.Constraint("Vertical", 0))
sketch9.addConstraint(Sketcher.Constraint("Horizontal", 1))
sketch9.addConstraint(Sketcher.Constraint("Vertical", 2))
sketch9.addConstraint(Sketcher.Constraint("Horizontal", 3))
sketch9.addConstraint(Sketcher.Constraint("Coincident", 3, 2, -1, 1))
sketch9.addConstraint(Sketcher.Constraint("DistanceY", 0, 1, 0, 2, Q("6 mm")))
sketch9.addConstraint(Sketcher.Constraint("DistanceX", 1, 1, 1, 2, Q("2.4 mm")))
sketch9.setExpression("Constraints[9]", "Params.sketch9_height")
sketch9.setExpression("Constraints[10]", "Params.sketch9_width")
pad9 = body.newObject("PartDesign::Pad", "Pad008")
pad9.Profile = sketch9
pad9.setExpression("Length", "Params.pad9_length")

doc.recompute()
